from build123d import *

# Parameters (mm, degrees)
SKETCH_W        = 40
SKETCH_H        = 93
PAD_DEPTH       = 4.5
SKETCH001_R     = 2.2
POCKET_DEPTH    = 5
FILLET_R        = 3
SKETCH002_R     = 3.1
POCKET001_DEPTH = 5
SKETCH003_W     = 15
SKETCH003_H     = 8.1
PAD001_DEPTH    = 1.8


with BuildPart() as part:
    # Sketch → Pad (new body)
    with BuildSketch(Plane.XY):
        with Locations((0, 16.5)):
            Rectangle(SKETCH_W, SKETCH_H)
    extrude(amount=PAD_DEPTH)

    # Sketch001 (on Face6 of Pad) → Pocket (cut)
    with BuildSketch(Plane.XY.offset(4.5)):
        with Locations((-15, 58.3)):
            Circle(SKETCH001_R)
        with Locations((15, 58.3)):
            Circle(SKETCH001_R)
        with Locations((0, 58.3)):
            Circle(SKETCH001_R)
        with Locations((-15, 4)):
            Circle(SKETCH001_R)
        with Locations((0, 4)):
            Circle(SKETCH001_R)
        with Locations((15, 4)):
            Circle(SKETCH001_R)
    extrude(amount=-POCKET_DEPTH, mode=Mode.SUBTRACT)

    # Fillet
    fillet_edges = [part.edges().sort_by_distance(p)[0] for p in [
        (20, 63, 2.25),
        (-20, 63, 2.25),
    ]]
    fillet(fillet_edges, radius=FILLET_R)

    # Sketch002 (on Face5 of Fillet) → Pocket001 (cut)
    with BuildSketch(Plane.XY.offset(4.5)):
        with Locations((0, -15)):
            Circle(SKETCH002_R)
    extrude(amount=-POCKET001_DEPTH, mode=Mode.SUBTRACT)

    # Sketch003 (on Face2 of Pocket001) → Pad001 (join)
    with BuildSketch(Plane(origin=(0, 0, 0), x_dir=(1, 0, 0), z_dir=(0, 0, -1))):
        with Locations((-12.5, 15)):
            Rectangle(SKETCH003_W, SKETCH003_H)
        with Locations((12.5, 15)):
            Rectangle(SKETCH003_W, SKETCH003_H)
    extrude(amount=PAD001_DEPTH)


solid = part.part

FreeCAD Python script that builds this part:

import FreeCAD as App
import Part
import Sketcher

V = App.Vector
Q = App.Units.Quantity


def edges_at(feature, points):
    """Names of the edges that pass closest to the given points."""
    edges = feature.Shape.Edges
    near = lambda p: min(range(len(edges)), key=lambda i: edges[i].distToShape(Part.Vertex(*p))[0])
    return sorted({f"Edge{near(p) + 1}" for p in points})

doc = App.newDocument("Part")
body = doc.addObject("PartDesign::Body", "Body")

sketch1 = doc.addObject("Sketcher::SketchObject", "Sketch")
body.addObject(sketch1)
sketch1.AttachmentSupport = (doc.XY_Plane, [""])
sketch1.MapMode = "FlatFace"
sketch1.addGeometry([
    Part.LineSegment(V(-20, 63, 0), V(-20, -30, 0)),
    Part.LineSegment(V(-20, -30, 0), V(20, -30, 0)),
    Part.LineSegment(V(20, -30, 0), V(20, 63, 0)),
    Part.LineSegment(V(20, 63, 0), V(-20, 63, 0)),
], False)
sketch1.addConstraint([
    Sketcher.Constraint("Coincident", 0, 2, 1, 1),
    Sketcher.Constraint("Coincident", 1, 2, 2, 1),
    Sketcher.Constraint("Coincident", 2, 2, 3, 1),
    Sketcher.Constraint("Coincident", 3, 2, 0, 1),
    Sketcher.Constraint("Vertical", 0),
    Sketcher.Constraint("Horizontal", 1),
    Sketcher.Constraint("Vertical", 2),
    Sketcher.Constraint("Horizontal", 3),
    Sketcher.Constraint("DistanceX", 1, 1, 1, 2, Q("40 mm")),
    Sketcher.Constraint("DistanceY", 0, 2, 0, 1, Q("93 mm")),
    Sketcher.Constraint("DistanceX", 0, 2, -1, 1, Q("20 mm")),
    Sketcher.Constraint("DistanceY", 0, 2, -1, 1, Q("30 mm")),
])
pad1 = doc.addObject("PartDesign::Pad", "Pad")
body.addObject(pad1)
pad1.Profile = sketch1
pad1.Length = 4.5

sketch2 = doc.addObject("Sketcher::SketchObject", "Sketch001")
body.addObject(sketch2)
sketch2.AttachmentSupport = (doc.XY_Plane, [""])
sketch2.MapMode = "FlatFace"
sketch2.AttachmentOffset = App.Placement(V(0, 0, 4.5), App.Rotation())
sketch2.addGeometry([
    Part.Circle(V(-15, 58.3, 0), V(0, 0, 1), 2.2),
    Part.Circle(V(15, 58.3, 0), V(0, 0, 1), 2.2),
    Part.Circle(V(0, 58.3, 0), V(0, 0, 1), 2.2),
    Part.Circle(V(-15, 4, 0), V(0, 0, 1), 2.2),
    Part.Circle(V(0, 4, 0), V(0, 0, 1), 2.2),
    Part.Circle(V(15, 4, 0), V(0, 0, 1), 2.2),
], False)
sketch2.addConstraint([
    Sketcher.Constraint("Equal", 0, 1),
    Sketcher.Constraint("Equal", 1, 2),
    Sketcher.Constraint("Equal", 2, 3),
    Sketcher.Constraint("Equal", 3, 4),
    Sketcher.Constraint("Equal", 4, 5),
    Sketcher.Constraint("Symmetric", 0, 3, 1, 3, -2),
    Sketcher.Constraint("Symmetric", 3, 3, 5, 3, -2),
    Sketcher.Constraint("PointOnObject", 2, 3, -2),
    Sketcher.Constraint("PointOnObject", 4, 3, -2),
    Sketcher.Constraint("Horizontal", 1, 3, 2, 3),
    Sketcher.Constraint("Horizontal", 3, 3, 4, 3),
    Sketcher.Constraint("Vertical", 0, 3, 3, 3),
    Sketcher.Constraint("Diameter", 0, Q("4.4 mm")),
    Sketcher.Constraint("DistanceX", 0, 3, -1, 1, Q("15 mm")),
    Sketcher.Constraint("DistanceY", -1, 1, 3, 3, Q("4 mm")),
    Sketcher.Constraint("DistanceY", -1, 1, 0, 3, Q("58.3 mm")),
])
pocket1 = doc.addObject("PartDesign::Pocket", "Pocket")
body.addObject(pocket1)
pocket1.Profile = sketch2
pocket1.Length = 5
doc.recompute()

fillet = doc.addObject("PartDesign::Fillet", "Fillet")
body.addObject(fillet)
fillet.Base = (pocket1, edges_at(pocket1, [(20, 63, 2.25), (-20, 63, 2.25)]))
fillet.Radius = 3

sketch3 = doc.addObject("Sketcher::SketchObject", "Sketch002")
body.addObject(sketch3)
sketch3.AttachmentSupport = (doc.XY_Plane, [""])
sketch3.MapMode = "FlatFace"
sketch3.AttachmentOffset = App.Placement(V(0, 0, 4.5), App.Rotation())
sketch3.addGeometry(Part.Circle(V(0, -15, 0), V(0, 0, 1), 3.1), False)
sketch3.addConstraint([
    Sketcher.Constraint("PointOnObject", 0, 3, -2),
    Sketcher.Constraint("Diameter", 0, Q("6.2 mm")),
    Sketcher.Constraint("DistanceY", 0, 3, -1, 1, Q("15 mm")),
])
pocket2 = doc.addObject("PartDesign::Pocket", "Pocket001")
body.addObject(pocket2)
pocket2.Profile = sketch3
pocket2.Length = 5

sketch4 = doc.addObject("Sketcher::SketchObject", "Sketch003")
body.addObject(sketch4)
sketch4.AttachmentSupport = (doc.XY_Plane, [""])
sketch4.MapMode = "FlatFace"
sketch4.addGeometry([
    Part.LineSegment(V(-20, -19.05, 0), V(-20, -10.95, 0)),
    Part.LineSegment(V(-20, -10.95, 0), V(-5, -10.95, 0)),
    Part.LineSegment(V(-5, -10.95, 0), V(-5, -19.05, 0)),
    Part.LineSegment(V(-5, -19.05, 0), V(-20, -19.05, 0)),
    Part.LineSegment(V(5, -19.05, 0), V(5, -10.95, 0)),
    Part.LineSegment(V(5, -10.95, 0), V(20, -10.95, 0)),
    Part.LineSegment(V(20, -10.95, 0), V(20, -19.05, 0)),
    Part.LineSegment(V(20, -19.05, 0), V(5, -19.05, 0)),
], False)
sketch4.addConstraint([
    Sketcher.Constraint("Coincident", 0, 2, 1, 1),
    Sketcher.Constraint("Coincident", 1, 2, 2, 1),
    Sketcher.Constraint("Coincident", 2, 2, 3, 1),
    Sketcher.Constraint("Coincident", 3, 2, 0, 1),
    Sketcher.Constraint("Coincident", 4, 2, 5, 1),
    Sketcher.Constraint("Coincident", 5, 2, 6, 1),
    Sketcher.Constraint("Coincident", 6, 2, 7, 1),
    Sketcher.Constraint("Coincident", 7, 2, 4, 1),
    Sketcher.Constraint("Vertical", 0),
    Sketcher.Constraint("Horizontal", 1),
    Sketcher.Constraint("Vertical", 2),
    Sketcher.Constraint("Horizontal", 3),
    Sketcher.Constraint("Vertical", 4),
    Sketcher.Constraint("Horizontal", 5),
    Sketcher.Constraint("Vertical", 6),
    Sketcher.Constraint("Horizontal", 7),
    Sketcher.Constraint("Symmetric", 1, 2, 4, 2, -2),
    Sketcher.Constraint("Symmetric", 3, 2, 6, 2, -2),
    Sketcher.Constraint("DistanceX", 1, 1, 1, 2, Q("15 mm")),
    Sketcher.Constraint("DistanceY", 0, 1, 0, 2, Q("8.1 mm")),
    Sketcher.Constraint("DistanceX", 0, 2, -1, 1, Q("20 mm")),
    Sketcher.Constraint("DistanceY", 0, 2, -1, 1, Q("10.95 mm")),
])
pad2 = doc.addObject("PartDesign::Pad", "Pad001")
body.addObject(pad2)
pad2.Profile = sketch4
pad2.Length = 1.8
pad2.Reversed = True

doc.recompute()
